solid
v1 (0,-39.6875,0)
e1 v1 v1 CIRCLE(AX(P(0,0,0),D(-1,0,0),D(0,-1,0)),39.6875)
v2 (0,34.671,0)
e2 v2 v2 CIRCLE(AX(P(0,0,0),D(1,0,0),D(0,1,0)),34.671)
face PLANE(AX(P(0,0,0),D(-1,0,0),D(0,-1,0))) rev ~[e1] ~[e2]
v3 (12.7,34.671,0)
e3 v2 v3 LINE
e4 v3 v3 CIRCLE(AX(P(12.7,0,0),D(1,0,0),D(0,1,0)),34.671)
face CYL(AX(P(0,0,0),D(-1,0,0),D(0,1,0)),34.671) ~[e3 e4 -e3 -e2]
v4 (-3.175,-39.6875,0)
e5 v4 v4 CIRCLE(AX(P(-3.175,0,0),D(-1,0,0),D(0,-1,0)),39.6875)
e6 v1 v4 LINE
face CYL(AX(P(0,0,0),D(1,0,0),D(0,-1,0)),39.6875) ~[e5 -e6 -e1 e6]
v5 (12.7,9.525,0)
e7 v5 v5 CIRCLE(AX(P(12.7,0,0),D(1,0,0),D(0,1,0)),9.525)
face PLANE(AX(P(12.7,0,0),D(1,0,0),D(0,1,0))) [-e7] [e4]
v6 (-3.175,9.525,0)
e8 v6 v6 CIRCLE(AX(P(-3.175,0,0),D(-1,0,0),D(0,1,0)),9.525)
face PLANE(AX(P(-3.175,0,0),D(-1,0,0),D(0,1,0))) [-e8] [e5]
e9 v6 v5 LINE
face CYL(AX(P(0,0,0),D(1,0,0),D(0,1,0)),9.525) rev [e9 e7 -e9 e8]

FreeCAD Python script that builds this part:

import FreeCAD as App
import Part
import Sketcher
from FreeCAD import Vector
Q = App.Units.Quantity

doc = App.newDocument("Part")
params = doc.addObject("Spreadsheet::Sheet", "Params")
for row, (alias, value) in enumerate([
    ("sketch1_diameter", "2.73 in"),
    ("sketch1_diameter2", "0.75 in"),
    ("pad1_length", "0.5 in"),
    ("sketch2_diameter", "2.73 in"),
    ("sketch2_diameter2", "3.125 in"),
    ("pad2_length", "0.125 in"),
    ("sketch3_diameter", "2.73 in"),
    ("sketch3_diameter2", "0.75 in"),
    ("pad3_length", "0.125 in"),
], start=1):
    params.set(f"A{row}", alias)
    params.set(f"B{row}", "=" + value)
    params.setAlias(f"B{row}", alias)

body = doc.addObject("PartDesign::Body", "Body")
body.AllowCompound = True

# Sketch on YZ plane
sketch1 = doc.addObject("Sketcher::SketchObject", "Sketch")
body.addObject(sketch1)
sketch1.AttachmentSupport = (doc.YZ_Plane, [""])
sketch1.MapMode = "FlatFace"
sketch1.addGeometry([
    Part.Circle(Vector(0, 0, 0), Vector(0, 0, 1), 34.671),
    Part.Circle(Vector(0, 0, 0), Vector(0, 0, 1), 9.525),
], False)
sketch1.addConstraint([
    Sketcher.Constraint("Coincident", 0, 3, -1, 1),
    Sketcher.Constraint("Coincident", 1, 3, -1, 1),
    Sketcher.Constraint("Diameter", 0, Q("2.73 in")),
    Sketcher.Constraint("Diameter", 1, Q("0.75 in")),
])
sketch1.setExpression("Constraints[2]", "Params.sketch1_diameter")
sketch1.setExpression("Constraints[3]", "Params.sketch1_diameter2")
pad1 = doc.addObject("PartDesign::Pad", "Pad")
body.addObject(pad1)
pad1.Profile = sketch1
pad1.setExpression("Length", "Params.pad1_length")

# Sketch on YZ plane
sketch2 = doc.addObject("Sketcher::SketchObject", "Sketch001")
body.addObject(sketch2)
sketch2.AttachmentSupport = (doc.YZ_Plane, [""])
sketch2.MapMode = "FlatFace"
sketch2.addGeometry([
    Part.Circle(Vector(0, 0, 0), Vector(0, 0, 1), 39.6875),
    Part.Circle(Vector(0, 0, 0), Vector(0, 0, 1), 34.671),
], False)
sketch2.addConstraint([
    Sketcher.Constraint("Coincident", 0, 3, -1, 1),
    Sketcher.Constraint("Coincident", 1, 3, -1, 1),
    Sketcher.Constraint("Diameter", 1, Q("2.73 in")),
    Sketcher.Constraint("Diameter", 0, Q("3.125 in")),
])
sketch2.setExpression("Constraints[2]", "Params.sketch2_diameter")
sketch2.setExpression("Constraints[3]", "Params.sketch2_diameter2")
pad2 = doc.addObject("PartDesign::Pad", "Pad001")
body.addObject(pad2)
pad2.Profile = sketch2
pad2.setExpression("Length", "Params.pad2_length")
pad2.Reversed = True

# Sketch on YZ plane
sketch3 = doc.addObject("Sketcher::SketchObject", "Sketch002")
body.addObject(sketch3)
sketch3.AttachmentSupport = (doc.YZ_Plane, [""])
sketch3.MapMode = "FlatFace"
sketch3.addGeometry([
    Part.Circle(Vector(0, 0, 0), Vector(0, 0, 1), 34.671),
    Part.Circle(Vector(0, 0, 0), Vector(0, 0, 1), 9.525),
], False)
sketch3.addConstraint([
    Sketcher.Constraint("Coincident", 0, 3, -1, 1),
    Sketcher.Constraint("Coincident", 1, 3, -1, 1),
    Sketcher.Constraint("Diameter", 0, Q("2.73 in")),
    Sketcher.Constraint("Diameter", 1, Q("0.75 in")),
])
sketch3.setExpression("Constraints[2]", "Params.sketch3_diameter")
sketch3.setExpression("Constraints[3]", "Params.sketch3_diameter2")
pad3 = doc.addObject("PartDesign::Pad", "Pad002")
body.addObject(pad3)
pad3.Profile = sketch3
pad3.setExpression("Length", "Params.pad3_length")
pad3.Reversed = True

doc.recompute()
